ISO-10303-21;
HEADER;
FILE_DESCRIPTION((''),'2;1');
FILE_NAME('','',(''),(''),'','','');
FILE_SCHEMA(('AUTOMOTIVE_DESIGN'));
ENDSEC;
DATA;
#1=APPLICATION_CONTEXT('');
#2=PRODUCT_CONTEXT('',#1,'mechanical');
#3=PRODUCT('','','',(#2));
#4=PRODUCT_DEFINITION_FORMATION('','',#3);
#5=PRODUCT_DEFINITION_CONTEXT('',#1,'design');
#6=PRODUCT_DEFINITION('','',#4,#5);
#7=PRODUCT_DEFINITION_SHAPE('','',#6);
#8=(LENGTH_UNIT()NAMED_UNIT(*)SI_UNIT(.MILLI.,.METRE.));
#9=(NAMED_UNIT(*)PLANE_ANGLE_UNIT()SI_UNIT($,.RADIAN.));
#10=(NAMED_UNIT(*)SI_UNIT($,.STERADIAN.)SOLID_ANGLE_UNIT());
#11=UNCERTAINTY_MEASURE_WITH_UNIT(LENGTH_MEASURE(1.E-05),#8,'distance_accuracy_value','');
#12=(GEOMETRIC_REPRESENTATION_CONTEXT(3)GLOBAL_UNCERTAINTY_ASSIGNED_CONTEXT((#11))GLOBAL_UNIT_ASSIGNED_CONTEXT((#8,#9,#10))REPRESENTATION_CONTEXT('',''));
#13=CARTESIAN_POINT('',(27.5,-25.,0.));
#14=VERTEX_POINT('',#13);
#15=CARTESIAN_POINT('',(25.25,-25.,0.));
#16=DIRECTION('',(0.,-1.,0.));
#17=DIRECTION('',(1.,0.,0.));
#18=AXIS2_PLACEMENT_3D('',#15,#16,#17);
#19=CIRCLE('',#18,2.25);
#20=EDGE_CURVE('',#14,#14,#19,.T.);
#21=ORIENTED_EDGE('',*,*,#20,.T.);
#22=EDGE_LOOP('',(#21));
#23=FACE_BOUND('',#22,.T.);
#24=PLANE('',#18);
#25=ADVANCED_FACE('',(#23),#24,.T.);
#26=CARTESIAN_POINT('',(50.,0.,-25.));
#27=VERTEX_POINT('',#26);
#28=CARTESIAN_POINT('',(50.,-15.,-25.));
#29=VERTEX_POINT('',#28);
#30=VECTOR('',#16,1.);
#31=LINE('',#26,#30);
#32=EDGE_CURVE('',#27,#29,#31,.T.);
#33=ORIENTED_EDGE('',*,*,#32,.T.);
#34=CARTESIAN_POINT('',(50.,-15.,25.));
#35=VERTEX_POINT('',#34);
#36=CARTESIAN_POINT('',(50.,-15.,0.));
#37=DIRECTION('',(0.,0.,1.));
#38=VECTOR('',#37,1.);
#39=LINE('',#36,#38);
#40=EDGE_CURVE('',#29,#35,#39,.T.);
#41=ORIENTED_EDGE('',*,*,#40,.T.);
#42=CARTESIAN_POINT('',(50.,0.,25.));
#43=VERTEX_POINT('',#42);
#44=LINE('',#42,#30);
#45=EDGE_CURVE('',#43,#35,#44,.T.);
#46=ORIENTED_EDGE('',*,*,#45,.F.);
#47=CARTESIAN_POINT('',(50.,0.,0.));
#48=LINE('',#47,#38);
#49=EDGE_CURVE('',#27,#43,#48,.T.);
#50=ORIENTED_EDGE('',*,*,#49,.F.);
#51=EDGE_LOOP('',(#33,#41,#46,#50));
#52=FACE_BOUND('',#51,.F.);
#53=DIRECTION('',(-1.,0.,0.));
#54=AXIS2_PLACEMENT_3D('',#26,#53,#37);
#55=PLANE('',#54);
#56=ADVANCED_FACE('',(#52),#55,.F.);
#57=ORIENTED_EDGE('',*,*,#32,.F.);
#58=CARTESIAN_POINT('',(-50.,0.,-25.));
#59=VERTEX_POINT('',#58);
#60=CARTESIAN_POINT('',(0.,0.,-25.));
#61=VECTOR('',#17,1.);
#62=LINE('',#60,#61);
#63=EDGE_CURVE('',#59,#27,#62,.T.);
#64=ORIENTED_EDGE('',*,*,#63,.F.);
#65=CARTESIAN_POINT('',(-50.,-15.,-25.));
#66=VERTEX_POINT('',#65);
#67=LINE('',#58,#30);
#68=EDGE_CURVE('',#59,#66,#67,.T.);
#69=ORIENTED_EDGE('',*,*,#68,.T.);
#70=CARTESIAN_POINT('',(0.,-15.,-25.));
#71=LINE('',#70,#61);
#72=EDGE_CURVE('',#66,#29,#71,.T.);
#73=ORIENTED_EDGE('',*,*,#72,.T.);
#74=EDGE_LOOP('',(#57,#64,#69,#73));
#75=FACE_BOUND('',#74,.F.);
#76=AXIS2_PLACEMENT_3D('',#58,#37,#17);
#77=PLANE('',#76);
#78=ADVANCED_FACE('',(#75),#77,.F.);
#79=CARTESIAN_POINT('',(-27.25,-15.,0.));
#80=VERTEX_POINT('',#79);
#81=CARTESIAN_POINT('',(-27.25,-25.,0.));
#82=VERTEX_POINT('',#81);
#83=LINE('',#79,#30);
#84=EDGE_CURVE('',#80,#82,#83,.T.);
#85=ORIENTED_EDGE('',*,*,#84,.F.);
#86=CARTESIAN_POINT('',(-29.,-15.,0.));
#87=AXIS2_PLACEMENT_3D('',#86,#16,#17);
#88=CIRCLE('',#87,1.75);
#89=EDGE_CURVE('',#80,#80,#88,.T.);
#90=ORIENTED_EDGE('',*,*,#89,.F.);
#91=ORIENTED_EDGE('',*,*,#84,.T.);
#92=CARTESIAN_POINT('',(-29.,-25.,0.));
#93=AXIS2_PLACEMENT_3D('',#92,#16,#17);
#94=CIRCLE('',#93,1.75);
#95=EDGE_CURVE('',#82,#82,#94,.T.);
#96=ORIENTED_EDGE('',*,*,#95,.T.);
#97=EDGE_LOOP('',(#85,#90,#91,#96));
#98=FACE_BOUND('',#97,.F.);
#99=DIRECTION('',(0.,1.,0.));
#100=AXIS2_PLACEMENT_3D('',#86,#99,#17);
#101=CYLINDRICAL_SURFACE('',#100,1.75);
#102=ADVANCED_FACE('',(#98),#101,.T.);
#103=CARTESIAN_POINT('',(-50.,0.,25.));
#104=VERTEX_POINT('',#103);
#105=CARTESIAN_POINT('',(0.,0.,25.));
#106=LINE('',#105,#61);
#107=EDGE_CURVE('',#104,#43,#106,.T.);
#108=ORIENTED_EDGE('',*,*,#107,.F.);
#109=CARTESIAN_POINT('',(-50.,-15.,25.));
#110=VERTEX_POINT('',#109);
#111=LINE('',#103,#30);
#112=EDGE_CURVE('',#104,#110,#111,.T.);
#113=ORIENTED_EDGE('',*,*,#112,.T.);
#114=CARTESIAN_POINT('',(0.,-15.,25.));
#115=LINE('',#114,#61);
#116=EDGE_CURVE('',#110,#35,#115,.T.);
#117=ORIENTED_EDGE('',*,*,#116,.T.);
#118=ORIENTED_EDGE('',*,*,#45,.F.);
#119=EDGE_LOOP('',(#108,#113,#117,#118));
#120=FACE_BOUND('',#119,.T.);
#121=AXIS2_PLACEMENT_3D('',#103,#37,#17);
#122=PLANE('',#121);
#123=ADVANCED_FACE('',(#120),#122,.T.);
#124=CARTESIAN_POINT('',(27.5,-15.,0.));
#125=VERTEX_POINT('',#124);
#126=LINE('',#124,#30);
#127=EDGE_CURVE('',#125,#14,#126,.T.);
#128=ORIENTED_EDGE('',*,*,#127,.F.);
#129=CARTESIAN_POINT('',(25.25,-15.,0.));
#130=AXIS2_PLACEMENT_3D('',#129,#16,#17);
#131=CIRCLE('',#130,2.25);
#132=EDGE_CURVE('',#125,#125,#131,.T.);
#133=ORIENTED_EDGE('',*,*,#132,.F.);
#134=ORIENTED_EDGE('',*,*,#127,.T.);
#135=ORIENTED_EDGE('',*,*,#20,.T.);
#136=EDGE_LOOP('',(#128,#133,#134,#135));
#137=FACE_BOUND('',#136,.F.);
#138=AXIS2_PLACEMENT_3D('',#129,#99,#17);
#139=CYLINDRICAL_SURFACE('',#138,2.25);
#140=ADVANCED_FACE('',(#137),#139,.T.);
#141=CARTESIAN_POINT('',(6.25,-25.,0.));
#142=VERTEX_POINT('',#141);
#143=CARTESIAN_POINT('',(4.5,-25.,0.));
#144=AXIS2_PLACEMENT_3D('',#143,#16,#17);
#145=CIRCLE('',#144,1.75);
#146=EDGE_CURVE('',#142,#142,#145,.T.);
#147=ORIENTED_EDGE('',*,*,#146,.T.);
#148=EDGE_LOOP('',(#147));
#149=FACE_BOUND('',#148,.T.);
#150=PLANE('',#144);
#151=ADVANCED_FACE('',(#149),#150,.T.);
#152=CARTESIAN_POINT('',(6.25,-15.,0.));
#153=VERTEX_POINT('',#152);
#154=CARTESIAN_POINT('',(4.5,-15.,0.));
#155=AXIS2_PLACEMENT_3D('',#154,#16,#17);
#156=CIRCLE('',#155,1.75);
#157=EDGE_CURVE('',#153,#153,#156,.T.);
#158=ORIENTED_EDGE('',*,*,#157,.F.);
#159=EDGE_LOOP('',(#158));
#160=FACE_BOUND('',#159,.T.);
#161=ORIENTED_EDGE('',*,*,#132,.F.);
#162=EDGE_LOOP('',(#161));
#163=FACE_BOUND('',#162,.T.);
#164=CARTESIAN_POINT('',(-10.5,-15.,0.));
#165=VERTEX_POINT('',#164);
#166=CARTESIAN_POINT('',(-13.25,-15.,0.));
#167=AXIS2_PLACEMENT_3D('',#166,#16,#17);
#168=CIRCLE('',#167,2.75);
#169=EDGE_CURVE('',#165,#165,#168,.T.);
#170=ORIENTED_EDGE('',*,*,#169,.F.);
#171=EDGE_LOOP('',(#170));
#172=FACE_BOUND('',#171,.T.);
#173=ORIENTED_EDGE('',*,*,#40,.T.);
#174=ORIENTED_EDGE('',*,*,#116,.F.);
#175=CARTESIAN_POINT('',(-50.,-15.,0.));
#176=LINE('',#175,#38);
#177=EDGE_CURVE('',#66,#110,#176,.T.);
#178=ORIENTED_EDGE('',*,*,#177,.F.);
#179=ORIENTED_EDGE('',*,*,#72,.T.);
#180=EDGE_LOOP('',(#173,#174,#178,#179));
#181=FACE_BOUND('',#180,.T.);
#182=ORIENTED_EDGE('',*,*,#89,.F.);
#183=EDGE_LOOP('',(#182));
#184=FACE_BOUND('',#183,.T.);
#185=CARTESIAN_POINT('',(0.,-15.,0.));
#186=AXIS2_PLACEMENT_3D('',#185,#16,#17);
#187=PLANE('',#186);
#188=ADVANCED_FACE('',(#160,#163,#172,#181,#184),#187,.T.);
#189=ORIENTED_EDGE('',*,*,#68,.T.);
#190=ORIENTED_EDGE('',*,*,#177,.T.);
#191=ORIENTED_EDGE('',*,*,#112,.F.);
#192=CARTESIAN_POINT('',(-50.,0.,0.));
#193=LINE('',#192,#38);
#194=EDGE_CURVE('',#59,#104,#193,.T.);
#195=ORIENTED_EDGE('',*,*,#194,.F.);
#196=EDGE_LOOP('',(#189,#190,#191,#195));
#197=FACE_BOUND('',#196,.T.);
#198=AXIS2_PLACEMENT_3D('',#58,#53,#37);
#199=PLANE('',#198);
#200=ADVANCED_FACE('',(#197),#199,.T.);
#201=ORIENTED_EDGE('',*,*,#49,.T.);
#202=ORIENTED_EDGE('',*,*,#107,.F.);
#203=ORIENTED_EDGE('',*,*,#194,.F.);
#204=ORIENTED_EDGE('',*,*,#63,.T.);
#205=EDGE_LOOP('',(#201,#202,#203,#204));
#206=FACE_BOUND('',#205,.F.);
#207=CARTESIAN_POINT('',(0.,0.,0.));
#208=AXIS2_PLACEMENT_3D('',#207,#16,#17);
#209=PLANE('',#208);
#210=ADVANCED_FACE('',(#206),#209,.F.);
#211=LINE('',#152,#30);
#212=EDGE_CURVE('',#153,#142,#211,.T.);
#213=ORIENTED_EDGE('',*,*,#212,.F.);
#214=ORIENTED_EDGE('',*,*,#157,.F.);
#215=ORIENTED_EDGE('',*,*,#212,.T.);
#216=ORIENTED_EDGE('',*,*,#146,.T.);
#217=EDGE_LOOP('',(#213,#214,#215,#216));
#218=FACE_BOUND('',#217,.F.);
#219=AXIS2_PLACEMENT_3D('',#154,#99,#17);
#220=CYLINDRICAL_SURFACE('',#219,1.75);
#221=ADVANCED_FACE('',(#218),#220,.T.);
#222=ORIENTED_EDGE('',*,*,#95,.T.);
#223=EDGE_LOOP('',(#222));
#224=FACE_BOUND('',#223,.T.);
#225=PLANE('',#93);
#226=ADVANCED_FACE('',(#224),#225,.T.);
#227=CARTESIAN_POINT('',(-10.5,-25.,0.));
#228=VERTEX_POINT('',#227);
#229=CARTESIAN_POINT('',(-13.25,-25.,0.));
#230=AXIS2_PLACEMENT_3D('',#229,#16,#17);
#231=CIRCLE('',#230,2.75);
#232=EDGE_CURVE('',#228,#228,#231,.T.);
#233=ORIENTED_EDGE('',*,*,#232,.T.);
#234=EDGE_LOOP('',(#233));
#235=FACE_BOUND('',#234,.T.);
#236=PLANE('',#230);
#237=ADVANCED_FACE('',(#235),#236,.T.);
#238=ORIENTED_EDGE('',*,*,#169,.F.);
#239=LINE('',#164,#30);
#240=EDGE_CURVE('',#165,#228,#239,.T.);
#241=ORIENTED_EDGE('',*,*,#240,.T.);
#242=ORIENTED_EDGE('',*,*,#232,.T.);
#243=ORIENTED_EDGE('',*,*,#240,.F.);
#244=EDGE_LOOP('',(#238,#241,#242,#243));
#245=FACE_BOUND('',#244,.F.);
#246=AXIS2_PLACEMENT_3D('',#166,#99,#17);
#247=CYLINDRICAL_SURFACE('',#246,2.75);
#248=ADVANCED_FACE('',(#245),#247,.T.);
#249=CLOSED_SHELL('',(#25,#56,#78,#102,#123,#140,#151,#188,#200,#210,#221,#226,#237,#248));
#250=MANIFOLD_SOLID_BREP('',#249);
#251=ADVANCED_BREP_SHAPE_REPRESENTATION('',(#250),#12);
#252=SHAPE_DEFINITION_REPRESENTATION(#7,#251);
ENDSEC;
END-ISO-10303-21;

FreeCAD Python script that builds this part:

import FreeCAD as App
import Part
import Sketcher

V = App.Vector
Q = App.Units.Quantity

doc = App.newDocument("Part")
params = doc.addObject("Spreadsheet::Sheet", "Params")
for row, (alias, value) in enumerate([
    ("sketch1_width", "100 mm"),
    ("sketch1_height", "50 mm"),
    ("pad1_length", "15 mm"),
    ("sketch2_diameter", "3.5 mm"),
    ("pad2_length", "10 mm"),
    ("sketch3_diameter", "5.5 mm"),
    ("pad3_length", "10 mm"),
    ("sketch4_diameter", "3.5 mm"),
    ("pad4_length", "10 mm"),
    ("sketch5_diameter", "4.5 mm"),
    ("pad5_length", "10 mm"),
], start=1):
    params.set(f"A{row}", alias)
    params.set(f"B{row}", "=" + value)
    params.setAlias(f"B{row}", alias)

body = doc.addObject("PartDesign::Body", "Body")

# Sketch on XZ plane
sketch1 = body.newObject("Sketcher::SketchObject", "Sketch")
sketch1.AttachmentSupport = (doc.getObject("XZ_Plane"), [""])
sketch1.MapMode = "FlatFace"
sketch1.addGeometry([
    Part.LineSegment(V(-50, 25, 0), V(-50, -25, 0)),
    Part.LineSegment(V(-50, -25, 0), V(50, -25, 0)),
    Part.LineSegment(V(50, -25, 0), V(50, 25, 0)),
    Part.LineSegment(V(50, 25, 0), V(-50, 25, 0)),
], False)
sketch1.addConstraint([
    Sketcher.Constraint("Coincident", 0, 2, 1, 1),
    Sketcher.Constraint("Coincident", 1, 2, 2, 1),
    Sketcher.Constraint("Coincident", 2, 2, 3, 1),
    Sketcher.Constraint("Coincident", 3, 2, 0, 1),
    Sketcher.Constraint("Vertical", 0),
    Sketcher.Constraint("Horizontal", 1),
    Sketcher.Constraint("Vertical", 2),
    Sketcher.Constraint("Horizontal", 3),
    Sketcher.Constraint("Symmetric", 0, 2, 2, 2, -1, 1),
    Sketcher.Constraint("DistanceX", 1, 1, 1, 2, Q("100 mm")),
    Sketcher.Constraint("DistanceY", 0, 2, 0, 1, Q("50 mm")),
])
sketch1.setExpression("Constraints[9]", "Params.sketch1_width")
sketch1.setExpression("Constraints[10]", "Params.sketch1_height")
pad1 = body.newObject("PartDesign::Pad", "Pad")
pad1.Profile = sketch1
pad1.setExpression("Length", "Params.pad1_length")

# Sketch on XZ plane
sketch2 = body.newObject("Sketcher::SketchObject", "Sketch001")
sketch2.AttachmentSupport = (doc.getObject("XZ_Plane"), [""])
sketch2.MapMode = "FlatFace"
sketch2.AttachmentOffset = App.Placement(V(0, 0, 15), App.Rotation())
sketch2.addGeometry(Part.Circle(V(-29, 0, 0), V(0, 0, 1), 1.75), False)
sketch2.addConstraint([
    Sketcher.Constraint("PointOnObject", 0, 3, -1),
    Sketcher.Constraint("Diameter", 0, Q("3.5 mm")),
    Sketcher.Constraint("DistanceX", 0, 3, -1, 1, Q("29 mm")),
])
sketch2.setExpression("Constraints[1]", "Params.sketch2_diameter")
pad2 = body.newObject("PartDesign::Pad", "Pad001")
pad2.Profile = sketch2
pad2.setExpression("Length", "Params.pad2_length")

# Sketch on XZ plane
sketch3 = body.newObject("Sketcher::SketchObject", "Sketch002")
sketch3.AttachmentSupport = (doc.getObject("XZ_Plane"), [""])
sketch3.MapMode = "FlatFace"
sketch3.AttachmentOffset = App.Placement(V(0, 0, 15), App.Rotation())
sketch3.addGeometry(Part.Circle(V(-13.25, 0, 0), V(0, 0, 1), 2.75), False)
sketch3.addConstraint([
    Sketcher.Constraint("PointOnObject", 0, 3, -1),
    Sketcher.Constraint("Diameter", 0, Q("5.5 mm")),
    Sketcher.Constraint("DistanceX", 0, 3, -1, 1, Q("13.25 mm")),
])
sketch3.setExpression("Constraints[1]", "Params.sketch3_diameter")
pad3 = body.newObject("PartDesign::Pad", "Pad002")
pad3.Profile = sketch3
pad3.setExpression("Length", "Params.pad3_length")

# Sketch on XZ plane
sketch4 = body.newObject("Sketcher::SketchObject", "Sketch003")
sketch4.AttachmentSupport = (doc.getObject("XZ_Plane"), [""])
sketch4.MapMode = "FlatFace"
sketch4.AttachmentOffset = App.Placement(V(0, 0, 15), App.Rotation())
sketch4.addGeometry(Part.Circle(V(4.5, 0, 0), V(0, 0, 1), 1.75), False)
sketch4.addConstraint([
    Sketcher.Constraint("PointOnObject", 0, 3, -1),
    Sketcher.Constraint("Diameter", 0, Q("3.5 mm")),
    Sketcher.Constraint("DistanceX", -1, 1, 0, 3, Q("4.5 mm")),
])
sketch4.setExpression("Constraints[1]", "Params.sketch4_diameter")
pad4 = body.newObject("PartDesign::Pad", "Pad003")
pad4.Profile = sketch4
pad4.setExpression("Length", "Params.pad4_length")

# Sketch on XZ plane
sketch5 = body.newObject("Sketcher::SketchObject", "Sketch004")
sketch5.AttachmentSupport = (doc.getObject("XZ_Plane"), [""])
sketch5.MapMode = "FlatFace"
sketch5.AttachmentOffset = App.Placement(V(0, 0, 15), App.Rotation())
sketch5.addGeometry(Part.Circle(V(25.25, 0, 0), V(0, 0, 1), 2.25), False)
sketch5.addConstraint([
    Sketcher.Constraint("PointOnObject", 0, 3, -1),
    Sketcher.Constraint("Diameter", 0, Q("4.5 mm")),
    Sketcher.Constraint("DistanceX", -1, 1, 0, 3, Q("25.25 mm")),
])
sketch5.setExpression("Constraints[1]", "Params.sketch5_diameter")
pad5 = body.newObject("PartDesign::Pad", "Pad004")
pad5.Profile = sketch5
pad5.setExpression("Length", "Params.pad5_length")

doc.recompute()
